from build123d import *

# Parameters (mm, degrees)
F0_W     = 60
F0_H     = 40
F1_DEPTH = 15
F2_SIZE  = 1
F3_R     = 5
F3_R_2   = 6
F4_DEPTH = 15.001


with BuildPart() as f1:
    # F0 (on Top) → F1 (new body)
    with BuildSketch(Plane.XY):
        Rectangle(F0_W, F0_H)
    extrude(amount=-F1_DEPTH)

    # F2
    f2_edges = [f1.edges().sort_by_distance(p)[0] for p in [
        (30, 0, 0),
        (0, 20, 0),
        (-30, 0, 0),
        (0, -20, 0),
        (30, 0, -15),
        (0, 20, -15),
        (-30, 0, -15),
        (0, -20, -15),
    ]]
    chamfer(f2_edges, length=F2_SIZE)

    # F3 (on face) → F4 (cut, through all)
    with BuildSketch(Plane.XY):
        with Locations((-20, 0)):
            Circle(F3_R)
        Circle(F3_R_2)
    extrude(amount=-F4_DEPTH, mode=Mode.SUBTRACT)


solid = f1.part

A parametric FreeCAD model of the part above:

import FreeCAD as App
import Part
import Sketcher
Q = App.Units.Quantity


def edges_at(feature, points):
    """Names of the edges that pass closest to the given points."""
    edges = feature.Shape.Edges
    near = lambda p: min(range(len(edges)), key=lambda i: edges[i].distToShape(Part.Vertex(*p))[0])
    return sorted({f"Edge{near(p) + 1}" for p in points})

doc = App.newDocument("Part")
params = doc.addObject("Spreadsheet::Sheet", "Params")
for row, (alias, value) in enumerate([
    ("sketch1_width", "60 mm"),
    ("sketch1_height", "40 mm"),
    ("pad1_length", "15 mm"),
    ("chamfer_size", "1 mm"),
    ("sketch2_diameter", "10 mm"),
    ("sketch2_diameter2", "12 mm"),
], start=1):
    params.set(f"A{row}", alias)
    params.set(f"B{row}", "=" + value)
    params.setAlias(f"B{row}", alias)

body = doc.addObject("PartDesign::Body", "Body")

# Sketch on XY plane
sketch1 = body.newObject("Sketcher::SketchObject", "Sketch")
sketch1.AttachmentSupport = (doc.getObject("XY_Plane"), [""])
sketch1.MapMode = "FlatFace"
sketch1.addGeometry([
    Part.LineSegment(App.Vector(-30, 20, 0), App.Vector(-30, -20, 0)),
    Part.LineSegment(App.Vector(-30, -20, 0), App.Vector(30, -20, 0)),
    Part.LineSegment(App.Vector(30, -20, 0), App.Vector(30, 20, 0)),
    Part.LineSegment(App.Vector(30, 20, 0), App.Vector(-30, 20, 0)),
], False)
sketch1.addConstraint([
    Sketcher.Constraint("Coincident", 0, 2, 1, 1),
    Sketcher.Constraint("Coincident", 1, 2, 2, 1),
    Sketcher.Constraint("Coincident", 2, 2, 3, 1),
    Sketcher.Constraint("Coincident", 3, 2, 0, 1),
    Sketcher.Constraint("Vertical", 0),
    Sketcher.Constraint("Horizontal", 1),
    Sketcher.Constraint("Vertical", 2),
    Sketcher.Constraint("Horizontal", 3),
    Sketcher.Constraint("Symmetric", 0, 2, 2, 2, -1, 1),
    Sketcher.Constraint("DistanceX", 1, 1, 1, 2, Q("60 mm")),
    Sketcher.Constraint("DistanceY", 0, 2, 0, 1, Q("40 mm")),
])
sketch1.setExpression("Constraints[9]", "Params.sketch1_width")
sketch1.setExpression("Constraints[10]", "Params.sketch1_height")
pad1 = body.newObject("PartDesign::Pad", "Pad")
pad1.Profile = sketch1
pad1.setExpression("Length", "Params.pad1_length")
pad1.Reversed = True
doc.recompute()

chamfer = body.newObject("PartDesign::Chamfer", "Chamfer")
chamfer.Base = (pad1, edges_at(pad1, [
    (30, 0, 0),
    (0, 20, 0),
    (-30, 0, 0),
    (0, -20, 0),
    (30, 0, -15),
    (0, 20, -15),
    (-30, 0, -15),
    (0, -20, -15),
]))
chamfer.setExpression("Size", "Params.chamfer_size")

# Sketch on XY plane
sketch2 = body.newObject("Sketcher::SketchObject", "Sketch001")
sketch2.AttachmentSupport = (doc.getObject("XY_Plane"), [""])
sketch2.MapMode = "FlatFace"
sketch2.addGeometry([
    Part.Circle(App.Vector(-20, 0, 0), App.Vector(0, 0, 1), 5),
    Part.Circle(App.Vector(0, 0, 0), App.Vector(0, 0, 1), 6),
], False)
sketch2.addConstraint([
    Sketcher.Constraint("Coincident", 1, 3, -1, 1),
    Sketcher.Constraint("PointOnObject", 0, 3, -1),
    Sketcher.Constraint("Diameter", 0, Q("10 mm")),
    Sketcher.Constraint("Diameter", 1, Q("12 mm")),
    Sketcher.Constraint("DistanceX", 0, 3, -1, 1, Q("20 mm")),
])
sketch2.setExpression("Constraints[2]", "Params.sketch2_diameter")
sketch2.setExpression("Constraints[3]", "Params.sketch2_diameter2")
pocket1 = body.newObject("PartDesign::Pocket", "Pocket")
pocket1.Profile = sketch2
pocket1.Type = "ThroughAll"

doc.recompute()
